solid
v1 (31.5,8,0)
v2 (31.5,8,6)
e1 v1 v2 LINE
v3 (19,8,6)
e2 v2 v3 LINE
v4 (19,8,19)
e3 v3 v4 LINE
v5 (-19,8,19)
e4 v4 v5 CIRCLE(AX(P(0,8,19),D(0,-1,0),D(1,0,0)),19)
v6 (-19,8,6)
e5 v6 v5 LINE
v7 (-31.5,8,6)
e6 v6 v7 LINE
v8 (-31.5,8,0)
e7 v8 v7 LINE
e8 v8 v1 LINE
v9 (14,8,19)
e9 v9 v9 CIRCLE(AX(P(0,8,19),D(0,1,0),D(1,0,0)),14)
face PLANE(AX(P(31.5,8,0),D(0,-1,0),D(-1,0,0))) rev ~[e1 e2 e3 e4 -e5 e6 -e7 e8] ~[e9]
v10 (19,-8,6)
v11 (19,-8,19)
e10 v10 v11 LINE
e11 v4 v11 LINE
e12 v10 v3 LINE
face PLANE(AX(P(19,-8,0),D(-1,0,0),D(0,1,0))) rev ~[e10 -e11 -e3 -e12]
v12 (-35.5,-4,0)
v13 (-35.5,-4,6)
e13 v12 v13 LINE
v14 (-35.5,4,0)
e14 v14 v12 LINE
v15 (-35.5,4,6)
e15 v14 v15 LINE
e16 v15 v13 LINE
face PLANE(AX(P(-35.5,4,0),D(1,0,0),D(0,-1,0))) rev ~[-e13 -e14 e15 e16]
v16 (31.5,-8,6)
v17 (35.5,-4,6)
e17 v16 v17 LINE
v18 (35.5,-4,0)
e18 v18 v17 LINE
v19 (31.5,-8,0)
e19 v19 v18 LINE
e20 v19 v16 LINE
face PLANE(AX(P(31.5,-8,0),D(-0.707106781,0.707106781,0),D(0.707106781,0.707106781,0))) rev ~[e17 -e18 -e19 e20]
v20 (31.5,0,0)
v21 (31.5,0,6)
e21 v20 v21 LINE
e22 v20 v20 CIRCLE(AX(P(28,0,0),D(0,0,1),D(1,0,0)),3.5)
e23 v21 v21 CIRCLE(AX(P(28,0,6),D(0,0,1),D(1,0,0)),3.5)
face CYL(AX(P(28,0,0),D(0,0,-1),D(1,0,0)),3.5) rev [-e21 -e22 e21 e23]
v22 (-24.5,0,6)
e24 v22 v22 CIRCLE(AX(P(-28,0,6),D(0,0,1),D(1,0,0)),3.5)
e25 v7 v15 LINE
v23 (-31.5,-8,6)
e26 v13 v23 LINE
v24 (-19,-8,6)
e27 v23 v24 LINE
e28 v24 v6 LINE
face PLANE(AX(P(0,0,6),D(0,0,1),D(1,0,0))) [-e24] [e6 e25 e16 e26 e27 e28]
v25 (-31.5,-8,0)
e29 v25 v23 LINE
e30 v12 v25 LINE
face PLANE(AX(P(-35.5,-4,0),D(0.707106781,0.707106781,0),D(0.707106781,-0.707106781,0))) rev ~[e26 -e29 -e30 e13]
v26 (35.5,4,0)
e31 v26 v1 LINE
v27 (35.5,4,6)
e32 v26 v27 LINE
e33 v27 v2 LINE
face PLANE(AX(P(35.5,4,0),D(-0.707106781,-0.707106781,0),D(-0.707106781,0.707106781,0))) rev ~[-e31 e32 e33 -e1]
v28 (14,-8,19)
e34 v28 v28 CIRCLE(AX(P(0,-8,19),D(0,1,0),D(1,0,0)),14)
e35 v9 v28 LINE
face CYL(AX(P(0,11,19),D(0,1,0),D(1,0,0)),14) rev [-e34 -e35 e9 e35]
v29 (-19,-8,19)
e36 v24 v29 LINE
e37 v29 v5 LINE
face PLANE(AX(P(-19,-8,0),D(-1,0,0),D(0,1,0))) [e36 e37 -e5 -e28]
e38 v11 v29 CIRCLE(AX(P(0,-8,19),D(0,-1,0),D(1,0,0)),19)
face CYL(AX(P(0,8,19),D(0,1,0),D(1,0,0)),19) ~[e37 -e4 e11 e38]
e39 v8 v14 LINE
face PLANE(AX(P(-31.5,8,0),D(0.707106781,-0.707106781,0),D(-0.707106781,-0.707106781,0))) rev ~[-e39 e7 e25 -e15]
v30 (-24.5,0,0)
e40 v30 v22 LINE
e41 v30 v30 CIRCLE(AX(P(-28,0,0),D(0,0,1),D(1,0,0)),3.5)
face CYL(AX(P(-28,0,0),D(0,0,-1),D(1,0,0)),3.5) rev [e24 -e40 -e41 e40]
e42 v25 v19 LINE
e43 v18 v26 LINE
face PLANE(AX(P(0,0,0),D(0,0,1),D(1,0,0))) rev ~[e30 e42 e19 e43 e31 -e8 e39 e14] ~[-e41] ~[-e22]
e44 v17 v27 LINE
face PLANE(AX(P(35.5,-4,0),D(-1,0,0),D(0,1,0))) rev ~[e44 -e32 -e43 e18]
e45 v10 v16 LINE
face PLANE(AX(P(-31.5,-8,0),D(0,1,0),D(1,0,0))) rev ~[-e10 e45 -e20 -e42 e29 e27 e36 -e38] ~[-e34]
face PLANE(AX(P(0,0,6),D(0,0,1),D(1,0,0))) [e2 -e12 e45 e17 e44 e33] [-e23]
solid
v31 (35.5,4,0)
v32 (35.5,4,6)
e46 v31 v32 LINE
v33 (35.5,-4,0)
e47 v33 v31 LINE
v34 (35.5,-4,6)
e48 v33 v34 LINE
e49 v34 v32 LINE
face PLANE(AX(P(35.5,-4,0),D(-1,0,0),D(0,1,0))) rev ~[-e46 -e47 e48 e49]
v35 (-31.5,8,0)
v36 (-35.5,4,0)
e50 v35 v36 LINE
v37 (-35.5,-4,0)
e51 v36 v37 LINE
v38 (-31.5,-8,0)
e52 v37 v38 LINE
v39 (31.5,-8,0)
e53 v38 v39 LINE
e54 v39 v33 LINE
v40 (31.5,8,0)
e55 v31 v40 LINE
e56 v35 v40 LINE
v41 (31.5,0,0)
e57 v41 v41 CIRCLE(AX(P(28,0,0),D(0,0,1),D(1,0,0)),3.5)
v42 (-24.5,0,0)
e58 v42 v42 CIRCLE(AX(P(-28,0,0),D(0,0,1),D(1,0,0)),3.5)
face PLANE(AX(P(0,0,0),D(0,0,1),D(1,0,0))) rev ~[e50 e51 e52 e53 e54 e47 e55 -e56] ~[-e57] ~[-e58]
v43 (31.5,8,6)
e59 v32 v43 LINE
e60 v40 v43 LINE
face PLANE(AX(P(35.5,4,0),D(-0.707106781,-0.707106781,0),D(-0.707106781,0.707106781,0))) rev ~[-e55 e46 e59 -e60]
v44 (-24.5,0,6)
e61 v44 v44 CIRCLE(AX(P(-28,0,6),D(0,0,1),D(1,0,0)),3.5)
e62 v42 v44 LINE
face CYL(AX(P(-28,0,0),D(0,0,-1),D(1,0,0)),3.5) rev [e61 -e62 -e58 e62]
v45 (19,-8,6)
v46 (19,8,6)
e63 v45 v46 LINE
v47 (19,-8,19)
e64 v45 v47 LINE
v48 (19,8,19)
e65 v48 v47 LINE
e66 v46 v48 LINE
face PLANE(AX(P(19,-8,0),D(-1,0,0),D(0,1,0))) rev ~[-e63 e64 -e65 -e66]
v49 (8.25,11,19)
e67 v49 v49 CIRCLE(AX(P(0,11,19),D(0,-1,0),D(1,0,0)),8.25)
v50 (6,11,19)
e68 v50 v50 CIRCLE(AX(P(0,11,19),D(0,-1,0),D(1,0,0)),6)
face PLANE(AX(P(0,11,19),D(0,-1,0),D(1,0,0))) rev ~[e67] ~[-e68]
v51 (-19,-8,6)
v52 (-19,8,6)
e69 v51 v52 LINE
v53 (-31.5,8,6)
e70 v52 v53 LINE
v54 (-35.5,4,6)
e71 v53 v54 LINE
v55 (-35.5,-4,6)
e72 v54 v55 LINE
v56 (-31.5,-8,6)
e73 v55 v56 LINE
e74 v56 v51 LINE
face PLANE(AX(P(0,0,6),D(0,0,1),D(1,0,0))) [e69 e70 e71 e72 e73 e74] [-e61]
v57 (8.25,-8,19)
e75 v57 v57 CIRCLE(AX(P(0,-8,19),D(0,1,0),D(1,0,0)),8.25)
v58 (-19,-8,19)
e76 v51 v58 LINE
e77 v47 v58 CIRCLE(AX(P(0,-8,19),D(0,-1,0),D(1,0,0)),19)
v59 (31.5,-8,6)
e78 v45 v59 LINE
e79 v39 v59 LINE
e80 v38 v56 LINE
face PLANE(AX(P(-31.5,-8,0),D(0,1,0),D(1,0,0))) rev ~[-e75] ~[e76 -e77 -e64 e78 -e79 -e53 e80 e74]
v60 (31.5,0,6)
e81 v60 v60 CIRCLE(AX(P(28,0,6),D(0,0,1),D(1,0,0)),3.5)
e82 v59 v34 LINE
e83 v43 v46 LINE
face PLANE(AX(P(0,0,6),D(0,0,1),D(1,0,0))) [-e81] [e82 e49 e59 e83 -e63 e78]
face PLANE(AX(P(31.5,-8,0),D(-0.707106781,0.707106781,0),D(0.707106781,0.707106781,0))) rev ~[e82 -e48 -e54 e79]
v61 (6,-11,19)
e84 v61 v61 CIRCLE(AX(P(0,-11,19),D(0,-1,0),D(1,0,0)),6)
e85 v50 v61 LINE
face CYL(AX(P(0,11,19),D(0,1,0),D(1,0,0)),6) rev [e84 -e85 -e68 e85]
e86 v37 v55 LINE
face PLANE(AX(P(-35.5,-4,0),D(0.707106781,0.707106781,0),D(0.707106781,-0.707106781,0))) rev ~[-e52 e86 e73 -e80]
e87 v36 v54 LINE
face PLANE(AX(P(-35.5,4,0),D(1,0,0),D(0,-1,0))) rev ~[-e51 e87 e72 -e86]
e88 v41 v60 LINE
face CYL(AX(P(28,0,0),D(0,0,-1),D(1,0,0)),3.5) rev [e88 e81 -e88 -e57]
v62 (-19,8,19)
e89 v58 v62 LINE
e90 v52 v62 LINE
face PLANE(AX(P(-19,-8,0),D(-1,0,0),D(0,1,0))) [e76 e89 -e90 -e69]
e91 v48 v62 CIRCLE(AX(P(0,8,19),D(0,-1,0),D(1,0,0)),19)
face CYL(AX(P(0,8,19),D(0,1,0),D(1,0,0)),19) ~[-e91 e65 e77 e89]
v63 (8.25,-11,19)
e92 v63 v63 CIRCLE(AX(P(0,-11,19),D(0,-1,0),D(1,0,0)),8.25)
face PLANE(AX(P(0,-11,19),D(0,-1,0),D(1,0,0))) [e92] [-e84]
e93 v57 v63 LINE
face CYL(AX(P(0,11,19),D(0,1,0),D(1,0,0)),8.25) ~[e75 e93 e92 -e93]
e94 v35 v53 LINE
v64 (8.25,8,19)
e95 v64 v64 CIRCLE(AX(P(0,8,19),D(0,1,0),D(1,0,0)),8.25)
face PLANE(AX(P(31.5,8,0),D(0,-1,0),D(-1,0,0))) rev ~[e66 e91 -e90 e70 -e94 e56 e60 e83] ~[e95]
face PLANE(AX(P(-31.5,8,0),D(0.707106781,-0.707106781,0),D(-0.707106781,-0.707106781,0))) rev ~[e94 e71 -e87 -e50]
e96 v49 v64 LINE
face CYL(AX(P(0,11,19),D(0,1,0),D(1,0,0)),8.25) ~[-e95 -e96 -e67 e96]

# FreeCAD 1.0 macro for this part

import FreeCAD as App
import Part
import Sketcher

V = App.Vector
Q = App.Units.Quantity


def add_polygon(sketch, points):
    """Adds a closed chain of lines whose ends are joined by coincident constraints."""
    first, n = sketch.GeometryCount, len(points)
    for a, b in zip(points, points[1:] + points[:1]):
        sketch.addGeometry(Part.LineSegment(App.Vector(*a, 0), App.Vector(*b, 0)), False)
    for i in range(n):
        sketch.addConstraint(Sketcher.Constraint("Coincident", first + i, 2, first + (i + 1) % n, 1))

doc = App.newDocument("Part")
body = doc.addObject("PartDesign::Body", "Body")

# Sketch on XY plane
sketch1 = body.newObject("Sketcher::SketchObject", "Sketch")
sketch1.AttachmentSupport = (doc.getObject("XY_Plane"), [""])
sketch1.MapMode = "FlatFace"
sketch1.addGeometry(Part.Circle(V(28, 0, 0), V(0, 0, 1), 3.5), False)
sketch1.addConstraint(Sketcher.Constraint("PointOnObject", 0, 3, -1))
sketch1.addConstraint(Sketcher.Constraint("Diameter", 0, Q("7 mm")))
sketch1.addConstraint(Sketcher.Constraint("DistanceX", -1, 1, 0, 3, Q("28 mm")))
pad1 = body.newObject("PartDesign::Pad", "Pad")
pad1.Profile = sketch1
pad1.Length = 6
body2 = doc.addObject("PartDesign::Body", "Body001")

# Sketch on XZ plane
sketch2 = body2.newObject("Sketcher::SketchObject", "Sketch001")
sketch2.AttachmentSupport = (doc.getObject("XZ_Plane001"), [""])
sketch2.MapMode = "FlatFace"
sketch2.AttachmentOffset = App.Placement(V(0, 0, -11), App.Rotation())
sketch2.addGeometry(Part.Circle(V(0, 19, 0), V(0, 0, 1), 6), False)
sketch2.addConstraint(Sketcher.Constraint("PointOnObject", 0, 3, -2))
sketch2.addConstraint(Sketcher.Constraint("Diameter", 0, Q("12 mm")))
sketch2.addConstraint(Sketcher.Constraint("DistanceY", -1, 1, 0, 3, Q("19 mm")))
pad2 = body2.newObject("PartDesign::Pad", "Pad001")
pad2.Profile = sketch2
pad2.Length = 22
body3 = doc.addObject("PartDesign::Body", "Body002")
body3.AllowCompound = True

# Sketch on XY plane
sketch3 = body3.newObject("Sketcher::SketchObject", "Sketch002")
sketch3.AttachmentSupport = (doc.getObject("XY_Plane002"), [""])
sketch3.MapMode = "FlatFace"
sketch3.addGeometry(Part.Circle(V(-28, 0, 0), V(0, 0, 1), 3.5), False)
sketch3.addConstraint(Sketcher.Constraint("PointOnObject", 0, 3, -1))
sketch3.addConstraint(Sketcher.Constraint("Diameter", 0, Q("7 mm")))
sketch3.addConstraint(Sketcher.Constraint("DistanceX", 0, 3, -1, 1, Q("28 mm")))
pad3 = body3.newObject("PartDesign::Pad", "Pad002")
pad3.Profile = sketch3
pad3.Length = 6
doc.recompute()

boolean = body3.newObject("PartDesign::Boolean", "Boolean")
boolean.Type = "Fuse"
boolean.addObjects([body])
doc.recompute()

boolean2 = body3.newObject("PartDesign::Boolean", "Boolean001")
boolean2.Type = "Fuse"
boolean2.addObjects([body2])
body4 = doc.addObject("PartDesign::Body", "Body003")

# Sketch on XY plane
sketch4 = body4.newObject("Sketcher::SketchObject", "Sketch003")
sketch4.AttachmentSupport = (doc.getObject("XY_Plane003"), [""])
sketch4.MapMode = "FlatFace"
add_polygon(sketch4, [(-19, 8), (-19, -8), (19, -8), (19, 8)])  # lines 0-3
sketch4.addConstraint(Sketcher.Constraint("Vertical", 0))
sketch4.addConstraint(Sketcher.Constraint("Horizontal", 1))
sketch4.addConstraint(Sketcher.Constraint("Vertical", 2))
sketch4.addConstraint(Sketcher.Constraint("Horizontal", 3))
sketch4.addConstraint(Sketcher.Constraint("Symmetric", 0, 2, 2, 2, -1, 1))
sketch4.addConstraint(Sketcher.Constraint("DistanceX", 1, 1, 1, 2, Q("38 mm")))
sketch4.addConstraint(Sketcher.Constraint("DistanceY", 0, 2, 0, 1, Q("16 mm")))
pad4 = body4.newObject("PartDesign::Pad", "Pad003")
pad4.Profile = sketch4
pad4.Length = 19
body5 = doc.addObject("PartDesign::Body", "Body004")

# Sketch on XY plane
sketch5 = body5.newObject("Sketcher::SketchObject", "Sketch004")
sketch5.AttachmentSupport = (doc.getObject("XY_Plane004"), [""])
sketch5.MapMode = "FlatFace"
add_polygon(sketch5, [(-31.5, -8), (31.5, -8), (35.5, -4), (35.5, 4), (31.5, 8), (-31.5, 8), (-35.5, 4), (-35.5, -4)])  # lines 0-7
sketch5.addConstraint(Sketcher.Constraint("Horizontal", 0))
sketch5.addConstraint(Sketcher.Constraint("Vertical", 2))
sketch5.addConstraint(Sketcher.Constraint("Horizontal", 4))
sketch5.addConstraint(Sketcher.Constraint("Vertical", 6))
sketch5.addConstraint(Sketcher.Constraint("Symmetric", 0, 2, 4, 2, -1, 1))
sketch5.addConstraint(Sketcher.Constraint("Symmetric", 1, 2, 5, 2, -1, 1))
sketch5.addConstraint(Sketcher.Constraint("Perpendicular", 1, 3))
sketch5.addConstraint(Sketcher.Constraint("Perpendicular", 5, 7))
sketch5.addConstraint(Sketcher.Constraint("Horizontal", 2, 2, 5, 2))
sketch5.addConstraint(Sketcher.Constraint("Horizontal", 1, 2, 6, 2))
sketch5.addConstraint(Sketcher.Constraint("Vertical", 0, 2, 3, 2))
sketch5.addConstraint(Sketcher.Constraint("DistanceX", 0, 1, 0, 2, Q("63 mm")))
sketch5.addConstraint(Sketcher.Constraint("DistanceY", 2, 1, 2, 2, Q("8 mm")))
sketch5.addConstraint(Sketcher.Constraint("DistanceY", 0, 2, -1, 1, Q("8 mm")))
pad5 = body5.newObject("PartDesign::Pad", "Pad004")
pad5.Profile = sketch5
pad5.Length = 6
body6 = doc.addObject("PartDesign::Body", "Body005")

# Sketch on XZ plane
sketch6 = body6.newObject("Sketcher::SketchObject", "Sketch005")
sketch6.AttachmentSupport = (doc.getObject("XZ_Plane005"), [""])
sketch6.MapMode = "FlatFace"
sketch6.AttachmentOffset = App.Placement(V(0, 0, -8), App.Rotation())
sketch6.addGeometry(Part.Circle(V(0, 19, 0), V(0, 0, 1), 19), False)
sketch6.addConstraint(Sketcher.Constraint("PointOnObject", 0, 3, -2))
sketch6.addConstraint(Sketcher.Constraint("Diameter", 0, Q("38 mm")))
sketch6.addConstraint(Sketcher.Constraint("DistanceY", -1, 1, 0, 3, Q("19 mm")))
pad6 = body6.newObject("PartDesign::Pad", "Pad005")
pad6.Profile = sketch6
pad6.Length = 16
doc.recompute()

boolean3 = body6.newObject("PartDesign::Boolean", "Boolean002")
boolean3.Type = "Fuse"
boolean3.addObjects([body4])
doc.recompute()

boolean4 = body6.newObject("PartDesign::Boolean", "Boolean003")
boolean4.Type = "Fuse"
boolean4.addObjects([body5])
body7 = doc.addObject("PartDesign::Body", "Body006")

# Sketch on XZ plane
sketch7 = body7.newObject("Sketcher::SketchObject", "Sketch006")
sketch7.AttachmentSupport = (doc.getObject("XZ_Plane006"), [""])
sketch7.MapMode = "FlatFace"
sketch7.AttachmentOffset = App.Placement(V(0, 0, -11), App.Rotation())
sketch7.addGeometry(Part.Circle(V(0, 19, 0), V(0, 0, 1), 8.25), False)
sketch7.addConstraint(Sketcher.Constraint("PointOnObject", 0, 3, -2))
sketch7.addConstraint(Sketcher.Constraint("Diameter", 0, Q("16.5 mm")))
sketch7.addConstraint(Sketcher.Constraint("DistanceY", -1, 1, 0, 3, Q("19 mm")))
pad7 = body7.newObject("PartDesign::Pad", "Pad006")
pad7.Profile = sketch7
pad7.Length = 22
doc.recompute()

boolean5 = body7.newObject("PartDesign::Boolean", "Boolean004")
boolean5.Type = "Fuse"
boolean5.addObjects([body6])
doc.recompute()

boolean6 = body7.newObject("PartDesign::Boolean", "Boolean005")
boolean6.Type = "Cut"
boolean6.addObjects([body3])
body8 = doc.addObject("PartDesign::Body", "Body007")

# Sketch on XY plane
sketch8 = body8.newObject("Sketcher::SketchObject", "Sketch007")
sketch8.AttachmentSupport = (doc.getObject("XY_Plane007"), [""])
sketch8.MapMode = "FlatFace"
sketch8.addGeometry(Part.Circle(V(28, 0, 0), V(0, 0, 1), 3.5), False)
sketch8.addConstraint(Sketcher.Constraint("PointOnObject", 0, 3, -1))
sketch8.addConstraint(Sketcher.Constraint("Diameter", 0, Q("7 mm")))
sketch8.addConstraint(Sketcher.Constraint("DistanceX", -1, 1, 0, 3, Q("28 mm")))
pad8 = body8.newObject("PartDesign::Pad", "Pad007")
pad8.Profile = sketch8
pad8.Length = 6
body9 = doc.addObject("PartDesign::Body", "Body008")

# Sketch on XZ plane
sketch9 = body9.newObject("Sketcher::SketchObject", "Sketch008")
sketch9.AttachmentSupport = (doc.getObject("XZ_Plane008"), [""])
sketch9.MapMode = "FlatFace"
sketch9.AttachmentOffset = App.Placement(V(0, 0, -11), App.Rotation())
sketch9.addGeometry(Part.Circle(V(0, 19, 0), V(0, 0, 1), 14), False)
sketch9.addConstraint(Sketcher.Constraint("PointOnObject", 0, 3, -2))
sketch9.addConstraint(Sketcher.Constraint("Diameter", 0, Q("28 mm")))
sketch9.addConstraint(Sketcher.Constraint("DistanceY", -1, 1, 0, 3, Q("19 mm")))
pad9 = body9.newObject("PartDesign::Pad", "Pad008")
pad9.Profile = sketch9
pad9.Length = 22
body10 = doc.addObject("PartDesign::Body", "Body009")
body10.AllowCompound = True

# Sketch on XY plane
sketch10 = body10.newObject("Sketcher::SketchObject", "Sketch009")
sketch10.AttachmentSupport = (doc.getObject("XY_Plane009"), [""])
sketch10.MapMode = "FlatFace"
sketch10.addGeometry(Part.Circle(V(-28, 0, 0), V(0, 0, 1), 3.5), False)
sketch10.addConstraint(Sketcher.Constraint("PointOnObject", 0, 3, -1))
sketch10.addConstraint(Sketcher.Constraint("Diameter", 0, Q("7 mm")))
sketch10.addConstraint(Sketcher.Constraint("DistanceX", 0, 3, -1, 1, Q("28 mm")))
pad10 = body10.newObject("PartDesign::Pad", "Pad009")
pad10.Profile = sketch10
pad10.Length = 6
doc.recompute()

boolean7 = body10.newObject("PartDesign::Boolean", "Boolean006")
boolean7.Type = "Fuse"
boolean7.addObjects([body8])
doc.recompute()

boolean8 = body10.newObject("PartDesign::Boolean", "Boolean007")
boolean8.Type = "Fuse"
boolean8.addObjects([body9])
body11 = doc.addObject("PartDesign::Body", "Body010")

# Sketch on XY plane
sketch11 = body11.newObject("Sketcher::SketchObject", "Sketch010")
sketch11.AttachmentSupport = (doc.getObject("XY_Plane010"), [""])
sketch11.MapMode = "FlatFace"
add_polygon(sketch11, [(-19, 8), (-19, -8), (19, -8), (19, 8)])  # lines 0-3
sketch11.addConstraint(Sketcher.Constraint("Vertical", 0))
sketch11.addConstraint(Sketcher.Constraint("Horizontal", 1))
sketch11.addConstraint(Sketcher.Constraint("Vertical", 2))
sketch11.addConstraint(Sketcher.Constraint("Horizontal", 3))
sketch11.addConstraint(Sketcher.Constraint("Symmetric", 0, 2, 2, 2, -1, 1))
sketch11.addConstraint(Sketcher.Constraint("DistanceX", 1, 1, 1, 2, Q("38 mm")))
sketch11.addConstraint(Sketcher.Constraint("DistanceY", 0, 2, 0, 1, Q("16 mm")))
pad11 = body11.newObject("PartDesign::Pad", "Pad010")
pad11.Profile = sketch11
pad11.Length = 19
body12 = doc.addObject("PartDesign::Body", "Body011")

# Sketch on XY plane
sketch12 = body12.newObject("Sketcher::SketchObject", "Sketch011")
sketch12.AttachmentSupport = (doc.getObject("XY_Plane011"), [""])
sketch12.MapMode = "FlatFace"
add_polygon(sketch12, [(-31.5, -8), (31.5, -8), (35.5, -4), (35.5, 4), (31.5, 8), (-31.5, 8), (-35.5, 4), (-35.5, -4)])  # lines 0-7
sketch12.addConstraint(Sketcher.Constraint("Horizontal", 0))
sketch12.addConstraint(Sketcher.Constraint("Vertical", 2))
sketch12.addConstraint(Sketcher.Constraint("Horizontal", 4))
sketch12.addConstraint(Sketcher.Constraint("Vertical", 6))
sketch12.addConstraint(Sketcher.Constraint("Symmetric", 0, 2, 4, 2, -1, 1))
sketch12.addConstraint(Sketcher.Constraint("Symmetric", 1, 2, 5, 2, -1, 1))
sketch12.addConstraint(Sketcher.Constraint("Perpendicular", 1, 3))
sketch12.addConstraint(Sketcher.Constraint("Perpendicular", 5, 7))
sketch12.addConstraint(Sketcher.Constraint("Horizontal", 2, 2, 5, 2))
sketch12.addConstraint(Sketcher.Constraint("Horizontal", 1, 2, 6, 2))
sketch12.addConstraint(Sketcher.Constraint("Vertical", 0, 2, 3, 2))
sketch12.addConstraint(Sketcher.Constraint("DistanceX", 0, 1, 0, 2, Q("63 mm")))
sketch12.addConstraint(Sketcher.Constraint("DistanceY", 2, 1, 2, 2, Q("8 mm")))
sketch12.addConstraint(Sketcher.Constraint("DistanceY", 0, 2, -1, 1, Q("8 mm")))
pad12 = body12.newObject("PartDesign::Pad", "Pad011")
pad12.Profile = sketch12
pad12.Length = 6
body13 = doc.addObject("PartDesign::Body", "Body012")

# Sketch on XZ plane
sketch13 = body13.newObject("Sketcher::SketchObject", "Sketch012")
sketch13.AttachmentSupport = (doc.getObject("XZ_Plane012"), [""])
sketch13.MapMode = "FlatFace"
sketch13.AttachmentOffset = App.Placement(V(0, 0, -8), App.Rotation())
sketch13.addGeometry(Part.Circle(V(0, 19, 0), V(0, 0, 1), 19), False)
sketch13.addConstraint(Sketcher.Constraint("PointOnObject", 0, 3, -2))
sketch13.addConstraint(Sketcher.Constraint("Diameter", 0, Q("38 mm")))
sketch13.addConstraint(Sketcher.Constraint("DistanceY", -1, 1, 0, 3, Q("19 mm")))
pad13 = body13.newObject("PartDesign::Pad", "Pad012")
pad13.Profile = sketch13
pad13.Length = 16
doc.recompute()

boolean9 = body13.newObject("PartDesign::Boolean", "Boolean008")
boolean9.Type = "Fuse"
boolean9.addObjects([body11])
doc.recompute()

boolean10 = body13.newObject("PartDesign::Boolean", "Boolean009")
boolean10.Type = "Fuse"
boolean10.addObjects([body12])
body14 = doc.addObject("PartDesign::Body", "Body013")

# Sketch on XZ plane
sketch14 = body14.newObject("Sketcher::SketchObject", "Sketch013")
sketch14.AttachmentSupport = (doc.getObject("XZ_Plane013"), [""])
sketch14.MapMode = "FlatFace"
sketch14.AttachmentOffset = App.Placement(V(0, 0, -11), App.Rotation())
sketch14.addGeometry(Part.Circle(V(0, 19, 0), V(0, 0, 1), 8.25), False)
sketch14.addConstraint(Sketcher.Constraint("PointOnObject", 0, 3, -2))
sketch14.addConstraint(Sketcher.Constraint("Diameter", 0, Q("16.5 mm")))
sketch14.addConstraint(Sketcher.Constraint("DistanceY", -1, 1, 0, 3, Q("19 mm")))
pad14 = body14.newObject("PartDesign::Pad", "Pad013")
pad14.Profile = sketch14
pad14.Length = 22
doc.recompute()

boolean11 = body14.newObject("PartDesign::Boolean", "Boolean010")
boolean11.Type = "Fuse"
boolean11.addObjects([body13])
doc.recompute()

boolean12 = body14.newObject("PartDesign::Boolean", "Boolean011")
boolean12.Type = "Cut"
boolean12.addObjects([body10])

doc.recompute()
